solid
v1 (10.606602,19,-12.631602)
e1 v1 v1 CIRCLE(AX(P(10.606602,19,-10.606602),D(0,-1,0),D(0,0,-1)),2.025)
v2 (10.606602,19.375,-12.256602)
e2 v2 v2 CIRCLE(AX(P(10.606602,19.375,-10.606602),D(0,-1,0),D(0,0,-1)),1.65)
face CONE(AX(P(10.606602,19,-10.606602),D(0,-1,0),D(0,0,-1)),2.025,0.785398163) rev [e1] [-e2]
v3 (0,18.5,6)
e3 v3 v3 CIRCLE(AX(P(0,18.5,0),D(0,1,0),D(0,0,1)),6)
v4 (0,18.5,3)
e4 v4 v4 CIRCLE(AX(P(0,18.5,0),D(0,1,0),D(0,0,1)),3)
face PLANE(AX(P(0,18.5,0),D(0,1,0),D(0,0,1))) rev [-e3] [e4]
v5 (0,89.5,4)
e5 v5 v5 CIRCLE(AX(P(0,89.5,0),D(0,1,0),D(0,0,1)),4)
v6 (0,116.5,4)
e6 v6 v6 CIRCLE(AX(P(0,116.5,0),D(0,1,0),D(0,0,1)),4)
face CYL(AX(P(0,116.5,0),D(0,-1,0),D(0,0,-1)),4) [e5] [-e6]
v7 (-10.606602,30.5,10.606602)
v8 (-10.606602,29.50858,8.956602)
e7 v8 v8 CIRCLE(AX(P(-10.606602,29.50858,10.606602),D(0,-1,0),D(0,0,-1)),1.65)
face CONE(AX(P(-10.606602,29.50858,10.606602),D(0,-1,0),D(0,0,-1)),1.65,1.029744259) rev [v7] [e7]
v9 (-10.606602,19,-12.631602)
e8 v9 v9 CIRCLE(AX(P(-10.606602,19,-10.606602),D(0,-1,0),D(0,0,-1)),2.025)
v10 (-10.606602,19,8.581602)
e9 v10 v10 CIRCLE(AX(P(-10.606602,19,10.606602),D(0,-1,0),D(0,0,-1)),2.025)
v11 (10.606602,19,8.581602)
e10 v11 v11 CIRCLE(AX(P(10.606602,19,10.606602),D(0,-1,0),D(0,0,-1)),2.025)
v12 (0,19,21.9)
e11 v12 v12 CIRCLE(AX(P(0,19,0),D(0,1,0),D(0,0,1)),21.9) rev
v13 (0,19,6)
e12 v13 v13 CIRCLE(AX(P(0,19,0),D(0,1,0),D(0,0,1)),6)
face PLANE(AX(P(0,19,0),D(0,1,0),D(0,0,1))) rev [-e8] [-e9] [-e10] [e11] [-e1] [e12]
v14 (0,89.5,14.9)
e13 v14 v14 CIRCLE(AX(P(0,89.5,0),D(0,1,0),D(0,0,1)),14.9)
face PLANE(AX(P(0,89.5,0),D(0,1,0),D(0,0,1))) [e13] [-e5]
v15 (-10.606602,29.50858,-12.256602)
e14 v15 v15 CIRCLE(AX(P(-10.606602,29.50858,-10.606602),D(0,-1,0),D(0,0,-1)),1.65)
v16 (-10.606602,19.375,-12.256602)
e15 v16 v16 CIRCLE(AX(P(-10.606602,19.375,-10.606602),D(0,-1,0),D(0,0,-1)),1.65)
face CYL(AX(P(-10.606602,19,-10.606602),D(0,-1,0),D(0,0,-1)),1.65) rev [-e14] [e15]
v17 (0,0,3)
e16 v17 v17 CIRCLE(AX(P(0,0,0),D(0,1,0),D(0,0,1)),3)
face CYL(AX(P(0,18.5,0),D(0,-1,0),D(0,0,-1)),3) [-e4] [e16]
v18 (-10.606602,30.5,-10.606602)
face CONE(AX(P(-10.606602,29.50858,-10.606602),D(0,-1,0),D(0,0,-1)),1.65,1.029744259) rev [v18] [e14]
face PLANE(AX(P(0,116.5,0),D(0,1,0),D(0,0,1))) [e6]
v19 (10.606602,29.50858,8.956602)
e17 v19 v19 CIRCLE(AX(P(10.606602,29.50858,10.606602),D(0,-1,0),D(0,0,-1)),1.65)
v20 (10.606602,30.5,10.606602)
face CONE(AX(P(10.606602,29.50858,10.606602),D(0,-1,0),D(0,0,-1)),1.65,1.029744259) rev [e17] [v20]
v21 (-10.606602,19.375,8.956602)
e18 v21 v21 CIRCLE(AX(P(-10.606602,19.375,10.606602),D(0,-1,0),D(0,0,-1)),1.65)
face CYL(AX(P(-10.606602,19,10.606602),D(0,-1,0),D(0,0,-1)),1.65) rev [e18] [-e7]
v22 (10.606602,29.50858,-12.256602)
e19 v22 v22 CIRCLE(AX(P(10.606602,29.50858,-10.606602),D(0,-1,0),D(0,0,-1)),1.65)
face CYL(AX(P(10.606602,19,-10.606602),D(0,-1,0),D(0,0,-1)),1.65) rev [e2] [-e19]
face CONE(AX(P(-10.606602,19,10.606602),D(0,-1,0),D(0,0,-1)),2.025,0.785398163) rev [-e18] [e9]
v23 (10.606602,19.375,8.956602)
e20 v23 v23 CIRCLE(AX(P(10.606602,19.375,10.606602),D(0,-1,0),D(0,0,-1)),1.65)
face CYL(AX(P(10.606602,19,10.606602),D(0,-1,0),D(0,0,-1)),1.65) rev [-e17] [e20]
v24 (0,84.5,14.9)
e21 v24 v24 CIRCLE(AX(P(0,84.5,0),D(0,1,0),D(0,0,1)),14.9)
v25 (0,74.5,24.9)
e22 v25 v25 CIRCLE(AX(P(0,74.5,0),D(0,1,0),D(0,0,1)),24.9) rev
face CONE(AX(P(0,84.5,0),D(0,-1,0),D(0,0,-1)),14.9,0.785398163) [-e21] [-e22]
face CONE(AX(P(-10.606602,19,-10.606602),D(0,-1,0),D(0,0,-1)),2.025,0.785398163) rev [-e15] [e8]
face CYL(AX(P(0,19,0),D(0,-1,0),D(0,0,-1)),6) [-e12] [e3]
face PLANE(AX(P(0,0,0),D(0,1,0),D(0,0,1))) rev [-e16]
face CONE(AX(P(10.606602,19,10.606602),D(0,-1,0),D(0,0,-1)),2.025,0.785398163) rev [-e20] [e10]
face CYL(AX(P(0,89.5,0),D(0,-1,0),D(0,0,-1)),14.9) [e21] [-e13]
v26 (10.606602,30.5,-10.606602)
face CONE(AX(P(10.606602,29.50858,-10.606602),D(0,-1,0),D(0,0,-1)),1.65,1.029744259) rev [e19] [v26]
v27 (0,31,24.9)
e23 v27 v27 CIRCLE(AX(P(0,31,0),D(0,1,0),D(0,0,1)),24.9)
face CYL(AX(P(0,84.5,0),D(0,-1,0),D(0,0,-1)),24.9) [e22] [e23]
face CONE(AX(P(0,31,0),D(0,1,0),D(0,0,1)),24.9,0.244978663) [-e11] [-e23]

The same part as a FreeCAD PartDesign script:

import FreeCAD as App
import Part
import Sketcher

V = App.Vector
Q = App.Units.Quantity


def edges_at(feature, points):
    """Names of the edges that pass closest to the given points."""
    edges = feature.Shape.Edges
    near = lambda p: min(range(len(edges)), key=lambda i: edges[i].distToShape(Part.Vertex(*p))[0])
    return sorted({f"Edge{near(p) + 1}" for p in points})

doc = App.newDocument("Part")
params = doc.addObject("Spreadsheet::Sheet", "Params")
for row, (alias, value) in enumerate([
    ("sketch1_diameter", "6 mm"),
    ("pad1_length", "18.5 mm"),
    ("sketch2_diameter", "12 mm"),
    ("pad2_length", "0.5 mm"),
    ("sketch3_diameter", "49.8 mm"),
    ("pad3_length", "65.5 mm"),
    ("sketch4_diameter", "8 mm"),
    ("pad4_length", "32 mm"),
    ("chamfer_size", "3 mm"),
    ("chamfer_size2", "12 mm"),
    ("chamfer2_size", "10 mm"),
    ("sketch5_diameter", "29.8 mm"),
    ("pad5_length", "5 mm"),
    ("sketch6_diameter", "3.3 mm"),
    ("hole_diameter", "3.3 mm"),
    ("hole_depth", "10.50858 mm"),
    ("hole_csink_diameter", "4.05 mm"),
], start=1):
    params.set(f"A{row}", alias)
    params.set(f"B{row}", "=" + value)
    params.setAlias(f"B{row}", alias)

body = doc.addObject("PartDesign::Body", "Body")

sketch1 = body.newObject("Sketcher::SketchObject", "Sketch")
sketch1.AttachmentSupport = (doc.getObject("XZ_Plane"), [""])
sketch1.MapMode = "FlatFace"
sketch1.addGeometry(Part.Circle(V(0, 0, 0), V(0, 0, 1), 3), False)
sketch1.addConstraint(Sketcher.Constraint("Coincident", 0, 3, -1, 1))
sketch1.addConstraint(Sketcher.Constraint("Diameter", 0, Q("6 mm")))
sketch1.setExpression("Constraints[1]", "Params.sketch1_diameter")
pad1 = body.newObject("PartDesign::Pad", "Pad")
pad1.Profile = sketch1
pad1.setExpression("Length", "Params.pad1_length")
pad1.Reversed = True

sketch2 = body.newObject("Sketcher::SketchObject", "Sketch001")
sketch2.AttachmentSupport = (doc.getObject("XZ_Plane"), [""])
sketch2.MapMode = "FlatFace"
sketch2.AttachmentOffset = App.Placement(V(0, 0, -18.5), App.Rotation())
sketch2.addGeometry(Part.Circle(V(0, 0, 0), V(0, 0, 1), 6), False)
sketch2.addConstraint(Sketcher.Constraint("Coincident", 0, 3, -1, 1))
sketch2.addConstraint(Sketcher.Constraint("Diameter", 0, Q("12 mm")))
sketch2.setExpression("Constraints[1]", "Params.sketch2_diameter")
pad2 = body.newObject("PartDesign::Pad", "Pad001")
pad2.Profile = sketch2
pad2.setExpression("Length", "Params.pad2_length")
pad2.Reversed = True

sketch3 = body.newObject("Sketcher::SketchObject", "Sketch002")
sketch3.AttachmentSupport = (doc.getObject("XZ_Plane"), [""])
sketch3.MapMode = "FlatFace"
sketch3.AttachmentOffset = App.Placement(V(0, 0, -19), App.Rotation())
sketch3.addGeometry(Part.Circle(V(0, 0, 0), V(0, 0, 1), 24.9), False)
sketch3.addConstraint(Sketcher.Constraint("Coincident", 0, 3, -1, 1))
sketch3.addConstraint(Sketcher.Constraint("Diameter", 0, Q("49.8 mm")))
sketch3.setExpression("Constraints[1]", "Params.sketch3_diameter")
pad3 = body.newObject("PartDesign::Pad", "Pad002")
pad3.Profile = sketch3
pad3.setExpression("Length", "Params.pad3_length")
pad3.Reversed = True

sketch4 = body.newObject("Sketcher::SketchObject", "Sketch003")
sketch4.AttachmentSupport = (doc.getObject("XZ_Plane"), [""])
sketch4.MapMode = "FlatFace"
sketch4.AttachmentOffset = App.Placement(V(0, 0, -84.5), App.Rotation())
sketch4.addGeometry(Part.Circle(V(0, 0, 0), V(0, 0, 1), 4), False)
sketch4.addConstraint(Sketcher.Constraint("Coincident", 0, 3, -1, 1))
sketch4.addConstraint(Sketcher.Constraint("Diameter", 0, Q("8 mm")))
sketch4.setExpression("Constraints[1]", "Params.sketch4_diameter")
pad4 = body.newObject("PartDesign::Pad", "Pad003")
pad4.Profile = sketch4
pad4.setExpression("Length", "Params.pad4_length")
pad4.Reversed = True
doc.recompute()

chamfer = body.newObject("PartDesign::Chamfer", "Chamfer")
chamfer.Base = (pad4, edges_at(pad4, [(0, 19, -24.9)]))
chamfer.ChamferType = "Two distances"
chamfer.setExpression("Size", "Params.chamfer_size")
chamfer.setExpression("Size2", "Params.chamfer_size2")
doc.recompute()

chamfer2 = body.newObject("PartDesign::Chamfer", "Chamfer001")
chamfer2.Base = (chamfer, edges_at(chamfer, [(0, 84.5, -24.9)]))
chamfer2.setExpression("Size", "Params.chamfer2_size")

sketch5 = body.newObject("Sketcher::SketchObject", "Sketch004")
sketch5.AttachmentSupport = (doc.getObject("XZ_Plane"), [""])
sketch5.MapMode = "FlatFace"
sketch5.AttachmentOffset = App.Placement(V(0, 0, -84.5), App.Rotation())
sketch5.addGeometry(Part.Circle(V(0, 0, 0), V(0, 0, 1), 14.9), False)
sketch5.addConstraint(Sketcher.Constraint("Coincident", 0, 3, -1, 1))
sketch5.addConstraint(Sketcher.Constraint("Diameter", 0, Q("29.8 mm")))
sketch5.setExpression("Constraints[1]", "Params.sketch5_diameter")
pad5 = body.newObject("PartDesign::Pad", "Pad004")
pad5.Profile = sketch5
pad5.setExpression("Length", "Params.pad5_length")
pad5.Reversed = True

sketch6 = body.newObject("Sketcher::SketchObject", "Sketch005")
sketch6.AttachmentSupport = (doc.getObject("XZ_Plane"), [""])
sketch6.MapMode = "FlatFace"
sketch6.AttachmentOffset = App.Placement(V(0, 0, -19), App.Rotation())
sketch6.addGeometry(Part.Circle(V(10.606602, -10.606602, 0), V(0, 0, 1), 1.65), False)
sketch6.addGeometry(Part.Circle(V(-10.606602, 10.606602, 0), V(0, 0, 1), 1.65), False)
sketch6.addGeometry(Part.Circle(V(-10.606602, -10.606602, 0), V(0, 0, 1), 1.65), False)
sketch6.addGeometry(Part.Circle(V(10.606602, 10.606602, 0), V(0, 0, 1), 1.65), False)
sketch6.addConstraint(Sketcher.Constraint("Equal", 0, 1))
sketch6.addConstraint(Sketcher.Constraint("Equal", 1, 2))
sketch6.addConstraint(Sketcher.Constraint("Equal", 2, 3))
sketch6.addConstraint(Sketcher.Constraint("Symmetric", 0, 3, 1, 3, -1, 1))
sketch6.addConstraint(Sketcher.Constraint("Symmetric", 2, 3, 3, 3, -1, 1))
sketch6.addConstraint(Sketcher.Constraint("Symmetric", 0, 3, 2, 3, -2))
sketch6.addConstraint(Sketcher.Constraint("Diameter", 0, Q("3.3 mm")))
sketch6.addConstraint(Sketcher.Constraint("DistanceX", -1, 1, 0, 3, Q("10.606602 mm")))
sketch6.addConstraint(Sketcher.Constraint("DistanceY", 0, 3, -1, 1, Q("10.606602 mm")))
sketch6.setExpression("Constraints[6]", "Params.sketch6_diameter")
doc.recompute()
hole = body.newObject("PartDesign::Hole", "Hole")
hole.Profile = sketch6
hole.ThreadType = "None"
hole.setExpression("Diameter", "Params.hole_diameter")
hole.DepthType = "Dimension"
hole.setExpression("Depth", "Params.hole_depth")
hole.DrillPoint = "Angled"
hole.DrillPointAngle = 118
hole.HoleCutType = "Countersink"
hole.setExpression("HoleCutDiameter", "Params.hole_csink_diameter")
hole.HoleCutCountersinkAngle = 90

doc.recompute()
